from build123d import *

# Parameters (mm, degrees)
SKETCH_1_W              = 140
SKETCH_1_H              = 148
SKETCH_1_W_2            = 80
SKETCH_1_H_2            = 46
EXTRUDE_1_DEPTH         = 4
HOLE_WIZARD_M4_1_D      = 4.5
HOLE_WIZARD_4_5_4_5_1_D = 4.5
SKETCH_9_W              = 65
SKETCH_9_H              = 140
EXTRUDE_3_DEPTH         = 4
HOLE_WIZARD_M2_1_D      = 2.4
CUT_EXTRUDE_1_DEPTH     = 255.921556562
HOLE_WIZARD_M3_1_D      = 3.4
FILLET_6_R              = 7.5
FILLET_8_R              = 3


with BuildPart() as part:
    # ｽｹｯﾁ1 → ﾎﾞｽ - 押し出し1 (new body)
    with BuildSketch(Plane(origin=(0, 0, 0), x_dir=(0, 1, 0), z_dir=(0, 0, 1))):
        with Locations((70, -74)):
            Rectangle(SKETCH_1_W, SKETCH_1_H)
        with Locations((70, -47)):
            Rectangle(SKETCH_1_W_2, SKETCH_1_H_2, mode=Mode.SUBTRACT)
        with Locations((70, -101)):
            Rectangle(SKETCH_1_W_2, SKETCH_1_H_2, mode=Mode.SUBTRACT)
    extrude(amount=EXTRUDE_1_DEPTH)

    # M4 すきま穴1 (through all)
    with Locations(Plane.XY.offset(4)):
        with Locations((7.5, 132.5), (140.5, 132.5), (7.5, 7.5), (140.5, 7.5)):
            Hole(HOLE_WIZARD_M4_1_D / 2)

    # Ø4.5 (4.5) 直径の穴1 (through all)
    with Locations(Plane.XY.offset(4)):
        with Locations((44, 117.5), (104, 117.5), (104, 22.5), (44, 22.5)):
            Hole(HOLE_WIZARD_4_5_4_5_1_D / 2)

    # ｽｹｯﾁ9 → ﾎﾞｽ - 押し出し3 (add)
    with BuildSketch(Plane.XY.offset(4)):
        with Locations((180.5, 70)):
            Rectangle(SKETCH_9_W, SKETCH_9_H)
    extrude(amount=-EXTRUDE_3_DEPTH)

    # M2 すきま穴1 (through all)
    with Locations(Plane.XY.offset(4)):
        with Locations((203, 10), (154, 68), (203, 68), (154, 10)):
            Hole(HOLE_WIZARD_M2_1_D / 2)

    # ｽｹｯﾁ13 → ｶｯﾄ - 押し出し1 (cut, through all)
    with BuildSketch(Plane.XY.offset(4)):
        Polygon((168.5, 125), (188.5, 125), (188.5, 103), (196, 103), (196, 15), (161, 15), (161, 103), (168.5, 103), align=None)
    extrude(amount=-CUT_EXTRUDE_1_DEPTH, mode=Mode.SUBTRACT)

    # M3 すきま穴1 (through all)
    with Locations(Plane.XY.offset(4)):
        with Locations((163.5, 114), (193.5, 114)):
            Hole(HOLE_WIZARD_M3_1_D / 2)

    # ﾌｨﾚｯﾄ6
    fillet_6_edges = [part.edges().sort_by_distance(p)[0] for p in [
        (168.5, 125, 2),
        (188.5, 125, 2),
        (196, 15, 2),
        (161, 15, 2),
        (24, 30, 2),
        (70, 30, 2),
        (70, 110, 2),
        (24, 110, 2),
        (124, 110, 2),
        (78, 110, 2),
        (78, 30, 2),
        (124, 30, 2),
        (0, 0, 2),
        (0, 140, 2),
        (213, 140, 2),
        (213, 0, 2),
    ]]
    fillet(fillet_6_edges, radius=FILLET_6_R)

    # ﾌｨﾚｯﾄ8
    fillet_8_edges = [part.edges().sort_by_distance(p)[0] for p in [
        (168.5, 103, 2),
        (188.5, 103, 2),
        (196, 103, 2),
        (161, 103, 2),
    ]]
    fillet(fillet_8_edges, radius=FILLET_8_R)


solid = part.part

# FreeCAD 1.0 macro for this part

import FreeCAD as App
import Part
import Sketcher
Q = App.Units.Quantity


def edges_at(feature, points):
    """Names of the edges that pass closest to the given points."""
    edges = feature.Shape.Edges
    near = lambda p: min(range(len(edges)), key=lambda i: edges[i].distToShape(Part.Vertex(*p))[0])
    return sorted({f"Edge{near(p) + 1}" for p in points})


def add_polygon(sketch, points):
    """Adds a closed chain of lines whose ends are joined by coincident constraints."""
    first, n = sketch.GeometryCount, len(points)
    for a, b in zip(points, points[1:] + points[:1]):
        sketch.addGeometry(Part.LineSegment(App.Vector(*a, 0), App.Vector(*b, 0)), False)
    for i in range(n):
        sketch.addConstraint(Sketcher.Constraint("Coincident", first + i, 2, first + (i + 1) % n, 1))

doc = App.newDocument("Part")
body = doc.addObject("PartDesign::Body", "Body")

sketch1 = body.newObject("Sketcher::SketchObject", "Sketch")
sketch1.AttachmentSupport = (doc.getObject("XY_Plane"), [""])
sketch1.MapMode = "FlatFace"
add_polygon(sketch1, [(0, 0), (148, 0), (148, 140), (0, 140)])
add_polygon(sketch1, [(124, 110), (124, 30), (78, 30), (78, 110)])
add_polygon(sketch1, [(70, 110), (70, 30), (24, 30), (24, 110)])
sketch1.addConstraint([
    Sketcher.Constraint("Horizontal", 0),
    Sketcher.Constraint("Vertical", 1),
    Sketcher.Constraint("Horizontal", 2),
    Sketcher.Constraint("Vertical", 3),
    Sketcher.Constraint("Vertical", 4),
    Sketcher.Constraint("Horizontal", 5),
    Sketcher.Constraint("Vertical", 6),
    Sketcher.Constraint("Horizontal", 7),
    Sketcher.Constraint("Vertical", 8),
    Sketcher.Constraint("Horizontal", 9),
    Sketcher.Constraint("Vertical", 10),
    Sketcher.Constraint("Horizontal", 11),
    Sketcher.Constraint("Coincident", 3, 2, -1, 1),
    Sketcher.Constraint("Horizontal", 5, 2, 8, 2),
    Sketcher.Constraint("Horizontal", 7, 2, 10, 2),
    Sketcher.Constraint("Equal", 7, 9),
    Sketcher.Constraint("DistanceX", 0, 1, 0, 2, Q("148 mm")),
    Sketcher.Constraint("DistanceX", 5, 2, 5, 1, Q("46 mm")),
    Sketcher.Constraint("DistanceY", 1, 1, 1, 2, Q("140 mm")),
    Sketcher.Constraint("DistanceY", 4, 2, 4, 1, Q("80 mm")),
    Sketcher.Constraint("DistanceX", -1, 1, 4, 2, Q("124 mm")),
    Sketcher.Constraint("DistanceY", -1, 1, 4, 2, Q("30 mm")),
    Sketcher.Constraint("DistanceX", -1, 1, 8, 2, Q("70 mm")),
])
pad1 = body.newObject("PartDesign::Pad", "Pad")
pad1.Profile = sketch1
pad1.Length = 4

sketch2 = body.newObject("Sketcher::SketchObject", "Sketch001")
sketch2.AttachmentSupport = (doc.getObject("XY_Plane"), [""])
sketch2.MapMode = "FlatFace"
sketch2.AttachmentOffset = App.Placement(App.Vector(0, 0, 4), App.Rotation())
sketch2.addGeometry([
    Part.Circle(App.Vector(7.5, 132.5, 0), App.Vector(0, 0, 1), 2.2),
    Part.Circle(App.Vector(140.5, 132.5, 0), App.Vector(0, 0, 1), 2.2),
    Part.Circle(App.Vector(7.5, 7.5, 0), App.Vector(0, 0, 1), 2.2),
    Part.Circle(App.Vector(140.5, 7.5, 0), App.Vector(0, 0, 1), 2.2),
], False)
sketch2.addConstraint([
    Sketcher.Constraint("Equal", 0, 1),
    Sketcher.Constraint("Equal", 1, 2),
    Sketcher.Constraint("Equal", 2, 3),
    Sketcher.Constraint("Horizontal", 0, 3, 1, 3),
    Sketcher.Constraint("Horizontal", 2, 3, 3, 3),
    Sketcher.Constraint("Vertical", 0, 3, 2, 3),
    Sketcher.Constraint("Vertical", 1, 3, 3, 3),
    Sketcher.Constraint("Diameter", 0, Q("4.5 mm")),
    Sketcher.Constraint("DistanceX", 0, 3, 1, 3, Q("133 mm")),
    Sketcher.Constraint("DistanceY", 2, 3, 0, 3, Q("125 mm")),
    Sketcher.Constraint("DistanceX", -1, 1, 0, 3, Q("7.5 mm")),
    Sketcher.Constraint("DistanceY", -1, 1, 0, 3, Q("132.5 mm")),
])
doc.recompute()
hole = body.newObject("PartDesign::Hole", "Hole")
hole.Profile = sketch2
hole.ThreadType = "None"
hole.Diameter = 4.5
hole.DepthType = "ThroughAll"

sketch3 = body.newObject("Sketcher::SketchObject", "Sketch002")
sketch3.AttachmentSupport = (doc.getObject("XY_Plane"), [""])
sketch3.MapMode = "FlatFace"
sketch3.AttachmentOffset = App.Placement(App.Vector(0, 0, 4), App.Rotation())
sketch3.addGeometry([
    Part.Circle(App.Vector(44, 117.5, 0), App.Vector(0, 0, 1), 2.2),
    Part.Circle(App.Vector(104, 117.5, 0), App.Vector(0, 0, 1), 2.2),
    Part.Circle(App.Vector(104, 22.5, 0), App.Vector(0, 0, 1), 2.2),
    Part.Circle(App.Vector(44, 22.5, 0), App.Vector(0, 0, 1), 2.2),
], False)
sketch3.addConstraint([
    Sketcher.Constraint("Equal", 0, 1),
    Sketcher.Constraint("Equal", 1, 2),
    Sketcher.Constraint("Equal", 2, 3),
    Sketcher.Constraint("Horizontal", 0, 3, 1, 3),
    Sketcher.Constraint("Horizontal", 2, 3, 3, 3),
    Sketcher.Constraint("Vertical", 1, 3, 2, 3),
    Sketcher.Constraint("Vertical", 0, 3, 3, 3),
    Sketcher.Constraint("Diameter", 0, Q("4.5 mm")),
    Sketcher.Constraint("DistanceX", -1, 1, 0, 3, Q("44 mm")),
    Sketcher.Constraint("DistanceX", -1, 1, 1, 3, Q("104 mm")),
    Sketcher.Constraint("DistanceY", 2, 3, 1, 3, Q("95 mm")),
    Sketcher.Constraint("DistanceY", -1, 1, 0, 3, Q("117.5 mm")),
])
doc.recompute()
hole2 = body.newObject("PartDesign::Hole", "Hole001")
hole2.Profile = sketch3
hole2.ThreadType = "None"
hole2.Diameter = 4.5
hole2.DepthType = "ThroughAll"

sketch4 = body.newObject("Sketcher::SketchObject", "Sketch003")
sketch4.AttachmentSupport = (doc.getObject("XY_Plane"), [""])
sketch4.MapMode = "FlatFace"
sketch4.AttachmentOffset = App.Placement(App.Vector(0, 0, 4), App.Rotation())
add_polygon(sketch4, [(148, 140), (148, 0), (213, 0), (213, 140)])
sketch4.addConstraint([
    Sketcher.Constraint("Vertical", 0),
    Sketcher.Constraint("Horizontal", 1),
    Sketcher.Constraint("Vertical", 2),
    Sketcher.Constraint("Horizontal", 3),
    Sketcher.Constraint("PointOnObject", 0, 2, -1),
    Sketcher.Constraint("DistanceX", 1, 1, 1, 2, Q("65 mm")),
    Sketcher.Constraint("DistanceY", 0, 2, 0, 1, Q("140 mm")),
    Sketcher.Constraint("DistanceX", -1, 1, 0, 2, Q("148 mm")),
])
pad2 = body.newObject("PartDesign::Pad", "Pad001")
pad2.Profile = sketch4
pad2.Length = 4
pad2.Reversed = True

sketch5 = body.newObject("Sketcher::SketchObject", "Sketch004")
sketch5.AttachmentSupport = (doc.getObject("XY_Plane"), [""])
sketch5.MapMode = "FlatFace"
sketch5.AttachmentOffset = App.Placement(App.Vector(0, 0, 4), App.Rotation())
sketch5.addGeometry([
    Part.Circle(App.Vector(203, 10, 0), App.Vector(0, 0, 1), 1.2),
    Part.Circle(App.Vector(154, 68, 0), App.Vector(0, 0, 1), 1.2),
    Part.Circle(App.Vector(203, 68, 0), App.Vector(0, 0, 1), 1.2),
    Part.Circle(App.Vector(154, 10, 0), App.Vector(0, 0, 1), 1.2),
], False)
sketch5.addConstraint([
    Sketcher.Constraint("Equal", 0, 1),
    Sketcher.Constraint("Equal", 1, 2),
    Sketcher.Constraint("Equal", 2, 3),
    Sketcher.Constraint("Horizontal", 1, 3, 2, 3),
    Sketcher.Constraint("Horizontal", 0, 3, 3, 3),
    Sketcher.Constraint("Vertical", 0, 3, 2, 3),
    Sketcher.Constraint("Vertical", 1, 3, 3, 3),
    Sketcher.Constraint("Diameter", 0, Q("2.4 mm")),
    Sketcher.Constraint("DistanceX", -1, 1, 0, 3, Q("203 mm")),
    Sketcher.Constraint("DistanceY", -1, 1, 0, 3, Q("10 mm")),
    Sketcher.Constraint("DistanceX", -1, 1, 1, 3, Q("154 mm")),
    Sketcher.Constraint("DistanceY", -1, 1, 1, 3, Q("68 mm")),
])
doc.recompute()
hole3 = body.newObject("PartDesign::Hole", "Hole002")
hole3.Profile = sketch5
hole3.ThreadType = "None"
hole3.Diameter = 2.4
hole3.DepthType = "ThroughAll"

sketch6 = body.newObject("Sketcher::SketchObject", "Sketch005")
sketch6.AttachmentSupport = (doc.getObject("XY_Plane"), [""])
sketch6.MapMode = "FlatFace"
sketch6.AttachmentOffset = App.Placement(App.Vector(0, 0, 4), App.Rotation())
add_polygon(sketch6, [(188, 125), (168, 125), (168, 103), (161, 103), (161, 15), (196, 15), (196, 103), (188, 103)])
sketch6.addConstraint([
    Sketcher.Constraint("Horizontal", 0),
    Sketcher.Constraint("Vertical", 1),
    Sketcher.Constraint("Horizontal", 2),
    Sketcher.Constraint("Vertical", 3),
    Sketcher.Constraint("Horizontal", 4),
    Sketcher.Constraint("Vertical", 5),
    Sketcher.Constraint("Horizontal", 6),
    Sketcher.Constraint("Vertical", 7),
    Sketcher.Constraint("Horizontal", 2, 2, 5, 2),
    Sketcher.Constraint("Equal", 2, 6),
    Sketcher.Constraint("DistanceX", 0, 2, 0, 1, Q("20 mm")),
    Sketcher.Constraint("DistanceX", 4, 1, 4, 2, Q("35 mm")),
    Sketcher.Constraint("DistanceY", 1, 2, 1, 1, Q("22 mm")),
    Sketcher.Constraint("DistanceY", 3, 2, 3, 1, Q("88 mm")),
    Sketcher.Constraint("DistanceY", -1, 1, 0, 2, Q("125 mm")),
    Sketcher.Constraint("DistanceX", -1, 1, 2, 2, Q("161 mm")),
])
pocket1 = body.newObject("PartDesign::Pocket", "Pocket")
pocket1.Profile = sketch6
pocket1.Type = "ThroughAll"

sketch7 = body.newObject("Sketcher::SketchObject", "Sketch006")
sketch7.AttachmentSupport = (doc.getObject("XY_Plane"), [""])
sketch7.MapMode = "FlatFace"
sketch7.AttachmentOffset = App.Placement(App.Vector(0, 0, 4), App.Rotation())
sketch7.addGeometry([
    Part.Circle(App.Vector(163.5, 114, 0), App.Vector(0, 0, 1), 1.7),
    Part.Circle(App.Vector(193.5, 114, 0), App.Vector(0, 0, 1), 1.7),
], False)
sketch7.addConstraint([
    Sketcher.Constraint("Equal", 0, 1),
    Sketcher.Constraint("Horizontal", 0, 3, 1, 3),
    Sketcher.Constraint("Diameter", 0, Q("3.4 mm")),
    Sketcher.Constraint("DistanceY", -1, 1, 0, 3, Q("114 mm")),
    Sketcher.Constraint("DistanceX", 0, 3, 1, 3, Q("30 mm")),
    Sketcher.Constraint("DistanceX", -1, 1, 0, 3, Q("163.5 mm")),
])
doc.recompute()
hole4 = body.newObject("PartDesign::Hole", "Hole003")
hole4.Profile = sketch7
hole4.ThreadType = "None"
hole4.Diameter = 3.4
hole4.DepthType = "ThroughAll"
doc.recompute()

fillet = body.newObject("PartDesign::Fillet", "Fillet")
fillet.Base = (hole4, edges_at(hole4, [
    (168.5, 125, 2),
    (188.5, 125, 2),
    (196, 15, 2),
    (161, 15, 2),
    (24, 30, 2),
    (70, 30, 2),
    (70, 110, 2),
    (24, 110, 2),
    (124, 110, 2),
    (78, 110, 2),
    (78, 30, 2),
    (124, 30, 2),
    (0, 0, 2),
    (0, 140, 2),
    (213, 140, 2),
    (213, 0, 2),
]))
fillet.Radius = 7.5
doc.recompute()

fillet2 = body.newObject("PartDesign::Fillet", "Fillet001")
fillet2.Base = (fillet, edges_at(fillet, [
    (168.5, 103, 2),
    (188.5, 103, 2),
    (196, 103, 2),
    (161, 103, 2),
]))
fillet2.Radius = 3

doc.recompute()
